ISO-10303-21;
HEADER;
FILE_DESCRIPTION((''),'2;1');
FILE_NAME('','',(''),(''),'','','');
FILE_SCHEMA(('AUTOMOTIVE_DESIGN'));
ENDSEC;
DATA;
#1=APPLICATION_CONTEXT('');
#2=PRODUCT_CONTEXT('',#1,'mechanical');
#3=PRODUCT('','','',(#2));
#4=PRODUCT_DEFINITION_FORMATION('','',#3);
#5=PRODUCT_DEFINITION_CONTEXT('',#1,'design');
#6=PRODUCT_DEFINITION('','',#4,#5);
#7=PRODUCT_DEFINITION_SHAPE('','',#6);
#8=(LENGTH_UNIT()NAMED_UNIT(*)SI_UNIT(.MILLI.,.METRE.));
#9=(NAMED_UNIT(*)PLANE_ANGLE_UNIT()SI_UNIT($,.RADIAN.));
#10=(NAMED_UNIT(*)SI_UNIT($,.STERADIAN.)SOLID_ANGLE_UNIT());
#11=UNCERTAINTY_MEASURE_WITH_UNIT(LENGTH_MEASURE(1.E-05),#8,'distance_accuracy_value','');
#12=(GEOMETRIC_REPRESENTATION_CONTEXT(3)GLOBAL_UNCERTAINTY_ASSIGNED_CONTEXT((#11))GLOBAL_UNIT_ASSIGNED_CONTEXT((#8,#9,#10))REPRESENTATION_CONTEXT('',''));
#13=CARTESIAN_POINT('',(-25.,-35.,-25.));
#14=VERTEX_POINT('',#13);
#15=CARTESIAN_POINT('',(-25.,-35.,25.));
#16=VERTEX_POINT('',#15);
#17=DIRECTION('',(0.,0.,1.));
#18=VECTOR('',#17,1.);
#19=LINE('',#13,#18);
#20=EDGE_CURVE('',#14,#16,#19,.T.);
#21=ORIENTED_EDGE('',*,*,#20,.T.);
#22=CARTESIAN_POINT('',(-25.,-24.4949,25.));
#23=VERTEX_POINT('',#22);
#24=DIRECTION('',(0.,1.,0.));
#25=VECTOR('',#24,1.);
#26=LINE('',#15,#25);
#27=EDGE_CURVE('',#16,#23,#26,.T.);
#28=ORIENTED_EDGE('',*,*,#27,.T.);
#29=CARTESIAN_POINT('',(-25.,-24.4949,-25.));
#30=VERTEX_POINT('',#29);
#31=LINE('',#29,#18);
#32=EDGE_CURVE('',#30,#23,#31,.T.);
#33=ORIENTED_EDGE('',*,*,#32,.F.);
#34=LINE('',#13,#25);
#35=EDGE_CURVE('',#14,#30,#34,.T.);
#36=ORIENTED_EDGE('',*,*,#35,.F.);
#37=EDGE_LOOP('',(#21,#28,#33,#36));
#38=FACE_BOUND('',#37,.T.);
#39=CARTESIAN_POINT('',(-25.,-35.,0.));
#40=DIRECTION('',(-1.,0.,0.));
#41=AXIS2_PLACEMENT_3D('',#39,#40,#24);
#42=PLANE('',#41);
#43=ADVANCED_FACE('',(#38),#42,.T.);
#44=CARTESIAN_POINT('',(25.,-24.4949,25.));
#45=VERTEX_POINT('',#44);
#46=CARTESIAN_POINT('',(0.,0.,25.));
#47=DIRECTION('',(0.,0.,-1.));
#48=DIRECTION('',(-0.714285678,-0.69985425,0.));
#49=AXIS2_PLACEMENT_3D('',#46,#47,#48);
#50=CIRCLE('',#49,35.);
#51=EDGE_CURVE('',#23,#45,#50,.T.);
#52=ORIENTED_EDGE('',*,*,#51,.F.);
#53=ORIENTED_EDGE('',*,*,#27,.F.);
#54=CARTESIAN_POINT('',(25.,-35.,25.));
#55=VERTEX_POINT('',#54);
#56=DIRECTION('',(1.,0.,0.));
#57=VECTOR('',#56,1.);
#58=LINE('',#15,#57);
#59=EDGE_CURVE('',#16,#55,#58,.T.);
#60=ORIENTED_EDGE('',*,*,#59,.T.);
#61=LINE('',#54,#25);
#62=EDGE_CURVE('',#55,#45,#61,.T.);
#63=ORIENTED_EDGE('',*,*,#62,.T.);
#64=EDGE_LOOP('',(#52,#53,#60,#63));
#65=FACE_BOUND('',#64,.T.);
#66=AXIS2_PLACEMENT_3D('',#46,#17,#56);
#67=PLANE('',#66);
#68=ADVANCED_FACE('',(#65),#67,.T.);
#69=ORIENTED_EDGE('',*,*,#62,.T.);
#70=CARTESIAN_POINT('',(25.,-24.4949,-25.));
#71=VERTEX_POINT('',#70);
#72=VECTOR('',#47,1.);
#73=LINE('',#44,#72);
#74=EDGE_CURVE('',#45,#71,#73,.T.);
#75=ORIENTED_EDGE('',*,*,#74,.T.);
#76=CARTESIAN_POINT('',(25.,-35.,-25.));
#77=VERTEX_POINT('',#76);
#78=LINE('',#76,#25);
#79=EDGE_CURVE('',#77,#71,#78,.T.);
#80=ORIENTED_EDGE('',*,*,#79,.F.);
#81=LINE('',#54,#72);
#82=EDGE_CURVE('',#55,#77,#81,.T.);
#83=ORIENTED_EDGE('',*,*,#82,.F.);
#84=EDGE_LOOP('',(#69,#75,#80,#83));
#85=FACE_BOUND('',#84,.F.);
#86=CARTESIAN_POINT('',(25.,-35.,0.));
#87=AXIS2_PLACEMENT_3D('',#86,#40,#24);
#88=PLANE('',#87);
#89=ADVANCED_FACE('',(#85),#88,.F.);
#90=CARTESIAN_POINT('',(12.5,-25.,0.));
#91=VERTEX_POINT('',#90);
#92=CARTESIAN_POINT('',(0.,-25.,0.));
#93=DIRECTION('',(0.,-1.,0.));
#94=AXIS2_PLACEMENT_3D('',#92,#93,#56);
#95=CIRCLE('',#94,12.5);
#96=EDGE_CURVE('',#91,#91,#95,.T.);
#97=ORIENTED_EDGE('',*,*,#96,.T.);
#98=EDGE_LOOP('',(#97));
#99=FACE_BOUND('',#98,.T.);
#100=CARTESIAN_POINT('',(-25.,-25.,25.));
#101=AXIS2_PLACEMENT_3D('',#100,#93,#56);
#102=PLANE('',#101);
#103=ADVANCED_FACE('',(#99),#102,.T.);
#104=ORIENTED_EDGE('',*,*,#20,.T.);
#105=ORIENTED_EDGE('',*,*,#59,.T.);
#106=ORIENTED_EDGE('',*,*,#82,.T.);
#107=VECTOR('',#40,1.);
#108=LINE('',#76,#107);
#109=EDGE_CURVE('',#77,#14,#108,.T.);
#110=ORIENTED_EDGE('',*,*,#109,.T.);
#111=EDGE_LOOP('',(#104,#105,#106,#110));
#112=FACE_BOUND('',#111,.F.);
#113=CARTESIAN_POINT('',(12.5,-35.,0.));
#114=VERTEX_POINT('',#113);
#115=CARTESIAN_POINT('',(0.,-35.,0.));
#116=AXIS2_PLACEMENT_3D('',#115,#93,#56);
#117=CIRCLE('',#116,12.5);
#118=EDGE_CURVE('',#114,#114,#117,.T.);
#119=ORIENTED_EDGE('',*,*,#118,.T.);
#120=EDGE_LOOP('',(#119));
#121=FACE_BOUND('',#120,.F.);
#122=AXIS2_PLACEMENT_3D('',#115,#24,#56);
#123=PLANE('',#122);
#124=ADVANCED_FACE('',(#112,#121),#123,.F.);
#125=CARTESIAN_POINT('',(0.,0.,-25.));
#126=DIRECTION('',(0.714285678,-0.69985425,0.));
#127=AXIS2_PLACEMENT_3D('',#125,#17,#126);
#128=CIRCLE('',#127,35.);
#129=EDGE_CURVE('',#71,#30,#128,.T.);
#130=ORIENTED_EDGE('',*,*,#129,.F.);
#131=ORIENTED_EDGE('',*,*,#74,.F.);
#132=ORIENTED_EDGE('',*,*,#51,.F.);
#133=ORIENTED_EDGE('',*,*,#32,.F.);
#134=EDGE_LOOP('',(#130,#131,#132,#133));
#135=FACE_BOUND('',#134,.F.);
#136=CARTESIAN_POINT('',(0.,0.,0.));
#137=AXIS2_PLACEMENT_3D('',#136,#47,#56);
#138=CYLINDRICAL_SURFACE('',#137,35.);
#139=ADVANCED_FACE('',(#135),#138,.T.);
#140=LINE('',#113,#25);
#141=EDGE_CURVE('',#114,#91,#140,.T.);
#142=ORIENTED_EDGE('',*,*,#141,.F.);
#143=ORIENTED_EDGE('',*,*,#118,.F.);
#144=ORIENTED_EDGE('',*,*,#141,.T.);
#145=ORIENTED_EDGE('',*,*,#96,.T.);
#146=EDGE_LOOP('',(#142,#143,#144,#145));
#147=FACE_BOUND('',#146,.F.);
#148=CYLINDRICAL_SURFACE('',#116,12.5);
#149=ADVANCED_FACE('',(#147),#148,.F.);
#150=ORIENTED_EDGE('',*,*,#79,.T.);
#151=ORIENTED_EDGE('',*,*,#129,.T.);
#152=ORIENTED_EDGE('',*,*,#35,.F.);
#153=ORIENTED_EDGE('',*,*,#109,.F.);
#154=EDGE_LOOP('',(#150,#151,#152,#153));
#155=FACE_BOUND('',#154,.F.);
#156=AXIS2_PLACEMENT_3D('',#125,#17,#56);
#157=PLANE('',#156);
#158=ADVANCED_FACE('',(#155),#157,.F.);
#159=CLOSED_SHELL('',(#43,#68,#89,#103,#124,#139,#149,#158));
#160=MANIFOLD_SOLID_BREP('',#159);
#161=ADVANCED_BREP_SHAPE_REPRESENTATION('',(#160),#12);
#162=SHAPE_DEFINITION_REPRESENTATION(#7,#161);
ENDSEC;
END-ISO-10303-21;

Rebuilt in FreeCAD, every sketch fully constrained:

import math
import FreeCAD as App
import Part
import Sketcher
from FreeCAD import Vector

doc = App.newDocument("Part")
body = doc.addObject("PartDesign::Body", "Body")

# Sketch on XY plane
sketch1 = doc.addObject("Sketcher::SketchObject", "Sketch")
body.addObject(sketch1)
sketch1.AttachmentSupport = (doc.XY_Plane, [""])
sketch1.MapMode = "FlatFace"
sketch1.addGeometry(Part.Circle(Vector(0, 0, 0), Vector(0, 0, 1), 35), False)
sketch1.addConstraint([
    Sketcher.Constraint("Coincident", 0, 3, -1, 1),
    Sketcher.Constraint("Diameter", 0, 70.0),
])
pad1 = doc.addObject("PartDesign::Pad", "Pad")
body.addObject(pad1)
pad1.Profile = sketch1
pad1.Length = 50
pad1.Midplane = True

# Sketch on XY plane
sketch2 = doc.addObject("Sketcher::SketchObject", "Sketch001")
body.addObject(sketch2)
sketch2.AttachmentSupport = (doc.XY_Plane, [""])
sketch2.MapMode = "FlatFace"
sketch2.addGeometry([
    Part.ArcOfCircle(Part.Circle(Vector(0, 0, 0), Vector(0, 0, 1), 35), math.radians(-44), math.radians(224)),
    Part.LineSegment(Vector(-25, -24, 0), Vector(-25, -35, 0)),
    Part.LineSegment(Vector(-25, -35, 0), Vector(25, -35, 0)),
    Part.LineSegment(Vector(25, -35, 0), Vector(25, -24, 0)),
], False)
sketch2.addConstraint([
    Sketcher.Constraint("Coincident", 0, 2, 1, 1),
    Sketcher.Constraint("Coincident", 1, 2, 2, 1),
    Sketcher.Constraint("Coincident", 2, 2, 3, 1),
    Sketcher.Constraint("Coincident", 3, 2, 0, 1),
    Sketcher.Constraint("Vertical", 1),
    Sketcher.Constraint("Horizontal", 2),
    Sketcher.Constraint("Vertical", 3),
    Sketcher.Constraint("Coincident", 0, 3, -1, 1),
    Sketcher.Constraint("Horizontal", 0, 2, 3, 2),
    Sketcher.Constraint("DistanceX", 0, 2, -1, 1, 25.0),
    Sketcher.Constraint("Radius", 0, 35.0),
    Sketcher.Constraint("DistanceY", 1, 2, -1, 1, 35.0),
])
pad2 = doc.addObject("PartDesign::Pad", "Pad001")
body.addObject(pad2)
pad2.Profile = sketch2
pad2.Length = 50
pad2.Midplane = True

# Sketch on XZ plane
sketch3 = doc.addObject("Sketcher::SketchObject", "Sketch002")
body.addObject(sketch3)
sketch3.AttachmentSupport = (doc.XZ_Plane, [""])
sketch3.MapMode = "FlatFace"
sketch3.AttachmentOffset = App.Placement(Vector(0, 0, 35), App.Rotation())
sketch3.addGeometry(Part.Circle(Vector(0, 0, 0), Vector(0, 0, 1), 12), False)
sketch3.addConstraint([
    Sketcher.Constraint("Coincident", 0, 3, -1, 1),
    Sketcher.Constraint("Diameter", 0, 25.0),
])
pocket1 = doc.addObject("PartDesign::Pocket", "Pocket")
body.addObject(pocket1)
pocket1.Profile = sketch3
pocket1.Length = 10

doc.recompute()
